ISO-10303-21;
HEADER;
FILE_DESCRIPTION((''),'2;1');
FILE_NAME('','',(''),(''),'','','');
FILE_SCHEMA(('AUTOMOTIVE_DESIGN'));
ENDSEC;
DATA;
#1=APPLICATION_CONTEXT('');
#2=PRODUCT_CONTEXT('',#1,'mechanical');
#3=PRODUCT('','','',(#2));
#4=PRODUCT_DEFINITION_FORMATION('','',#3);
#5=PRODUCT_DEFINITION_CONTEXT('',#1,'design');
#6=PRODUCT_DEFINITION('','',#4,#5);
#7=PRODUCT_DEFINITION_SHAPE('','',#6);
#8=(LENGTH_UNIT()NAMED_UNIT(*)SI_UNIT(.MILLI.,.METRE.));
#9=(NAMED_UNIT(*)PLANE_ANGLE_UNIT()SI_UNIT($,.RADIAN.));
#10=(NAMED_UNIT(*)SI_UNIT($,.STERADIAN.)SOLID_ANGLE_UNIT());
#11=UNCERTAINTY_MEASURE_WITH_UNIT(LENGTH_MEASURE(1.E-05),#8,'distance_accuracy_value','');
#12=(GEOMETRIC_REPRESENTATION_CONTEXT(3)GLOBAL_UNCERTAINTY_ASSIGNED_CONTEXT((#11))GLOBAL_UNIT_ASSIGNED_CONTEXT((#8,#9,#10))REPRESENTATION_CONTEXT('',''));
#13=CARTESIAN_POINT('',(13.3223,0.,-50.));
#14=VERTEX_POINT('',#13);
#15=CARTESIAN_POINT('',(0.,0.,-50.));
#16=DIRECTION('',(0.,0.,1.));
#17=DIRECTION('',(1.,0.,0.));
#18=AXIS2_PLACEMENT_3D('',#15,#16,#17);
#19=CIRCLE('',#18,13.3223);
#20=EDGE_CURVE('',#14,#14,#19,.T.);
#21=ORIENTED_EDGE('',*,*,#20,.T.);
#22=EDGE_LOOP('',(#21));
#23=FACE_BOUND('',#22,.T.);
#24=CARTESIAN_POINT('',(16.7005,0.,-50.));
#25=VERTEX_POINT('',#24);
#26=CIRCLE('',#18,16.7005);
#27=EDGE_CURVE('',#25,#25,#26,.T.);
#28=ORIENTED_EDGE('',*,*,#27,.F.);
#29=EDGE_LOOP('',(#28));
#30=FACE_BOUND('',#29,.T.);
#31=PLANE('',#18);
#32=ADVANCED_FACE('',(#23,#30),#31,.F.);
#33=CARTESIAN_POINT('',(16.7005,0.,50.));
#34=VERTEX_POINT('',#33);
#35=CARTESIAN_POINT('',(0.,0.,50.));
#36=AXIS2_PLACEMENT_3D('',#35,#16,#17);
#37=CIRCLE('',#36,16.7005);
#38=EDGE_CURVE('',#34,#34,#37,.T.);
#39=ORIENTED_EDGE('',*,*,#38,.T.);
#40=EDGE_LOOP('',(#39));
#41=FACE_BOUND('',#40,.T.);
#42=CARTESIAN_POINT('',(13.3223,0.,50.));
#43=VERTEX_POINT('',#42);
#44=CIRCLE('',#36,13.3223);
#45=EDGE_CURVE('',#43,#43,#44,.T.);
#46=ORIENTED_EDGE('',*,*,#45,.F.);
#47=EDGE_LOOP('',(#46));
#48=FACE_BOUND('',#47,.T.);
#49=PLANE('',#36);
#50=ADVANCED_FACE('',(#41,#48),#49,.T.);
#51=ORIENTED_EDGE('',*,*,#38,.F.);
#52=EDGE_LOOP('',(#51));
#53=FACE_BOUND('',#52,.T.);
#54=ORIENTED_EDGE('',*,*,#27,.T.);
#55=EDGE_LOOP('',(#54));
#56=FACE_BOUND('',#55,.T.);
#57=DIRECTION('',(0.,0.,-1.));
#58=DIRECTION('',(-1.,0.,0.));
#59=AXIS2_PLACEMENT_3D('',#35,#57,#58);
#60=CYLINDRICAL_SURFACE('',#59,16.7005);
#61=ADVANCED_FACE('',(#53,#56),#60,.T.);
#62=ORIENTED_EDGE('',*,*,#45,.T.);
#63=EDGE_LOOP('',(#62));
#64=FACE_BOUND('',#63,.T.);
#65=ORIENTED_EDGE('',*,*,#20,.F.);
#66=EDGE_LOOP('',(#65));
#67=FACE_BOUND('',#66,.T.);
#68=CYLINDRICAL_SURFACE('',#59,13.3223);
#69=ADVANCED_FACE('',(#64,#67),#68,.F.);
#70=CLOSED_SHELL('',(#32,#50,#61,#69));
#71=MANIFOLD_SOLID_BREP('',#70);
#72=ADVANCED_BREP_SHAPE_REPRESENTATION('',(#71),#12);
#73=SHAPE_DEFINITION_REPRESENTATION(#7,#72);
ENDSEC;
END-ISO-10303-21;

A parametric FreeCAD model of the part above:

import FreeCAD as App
import Part
import Sketcher
from FreeCAD import Vector
Q = App.Units.Quantity

doc = App.newDocument("Part")
body = doc.addObject("PartDesign::Body", "Body")

# Sketch on XY plane
sketch1 = body.newObject("Sketcher::SketchObject", "Sketch")
sketch1.AttachmentSupport = (doc.getObject("XY_Plane"), [""])
sketch1.MapMode = "FlatFace"
sketch1.addGeometry([
    Part.Circle(Vector(0, 0, 0), Vector(0, 0, 1), 17),
    Part.Circle(Vector(0, 0, 0), Vector(0, 0, 1), 13),
], False)
sketch1.addConstraint([
    Sketcher.Constraint("Coincident", 0, 3, -1, 1),
    Sketcher.Constraint("Coincident", 1, 3, -1, 1),
    Sketcher.Constraint("Diameter", 0, Q("1.315 in")),
    Sketcher.Constraint("Diameter", 1, Q("1.049 in")),
])
pad1 = body.newObject("PartDesign::Pad", "Pad")
pad1.Profile = sketch1
pad1.Length = 100
pad1.Midplane = True

doc.recompute()
